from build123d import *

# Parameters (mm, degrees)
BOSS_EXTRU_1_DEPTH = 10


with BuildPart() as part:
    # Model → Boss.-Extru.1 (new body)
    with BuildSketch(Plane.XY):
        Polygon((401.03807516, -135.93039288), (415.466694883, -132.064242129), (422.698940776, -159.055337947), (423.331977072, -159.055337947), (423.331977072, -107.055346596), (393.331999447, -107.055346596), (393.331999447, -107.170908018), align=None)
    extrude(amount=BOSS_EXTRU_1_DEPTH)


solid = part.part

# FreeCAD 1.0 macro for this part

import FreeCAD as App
import Part
import Sketcher

V = App.Vector
Q = App.Units.Quantity

doc = App.newDocument("Part")
body = doc.addObject("PartDesign::Body", "Body")

sketch1 = body.newObject("Sketcher::SketchObject", "Sketch")
sketch1.AttachmentSupport = (doc.getObject("XY_Plane"), [""])
sketch1.MapMode = "FlatFace"
sketch1.addGeometry([
    Part.LineSegment(V(401.04, -135.93, 0), V(415.47, -132.06, 0)),
    Part.LineSegment(V(415.47, -132.06, 0), V(422.7, -159.06, 0)),
    Part.LineSegment(V(422.7, -159.06, 0), V(423.33, -159.06, 0)),
    Part.LineSegment(V(423.33, -159.06, 0), V(423.33, -107.06, 0)),
    Part.LineSegment(V(423.33, -107.06, 0), V(393.33, -107.06, 0)),
    Part.LineSegment(V(393.33, -107.06, 0), V(393.33, -107.17, 0)),
    Part.LineSegment(V(393.33, -107.17, 0), V(401.04, -135.93, 0)),
], False)
sketch1.addConstraint([
    Sketcher.Constraint("Coincident", 0, 2, 1, 1),
    Sketcher.Constraint("Coincident", 1, 2, 2, 1),
    Sketcher.Constraint("Coincident", 2, 2, 3, 1),
    Sketcher.Constraint("Coincident", 3, 2, 4, 1),
    Sketcher.Constraint("Coincident", 4, 2, 5, 1),
    Sketcher.Constraint("Coincident", 5, 2, 6, 1),
    Sketcher.Constraint("Coincident", 6, 2, 0, 1),
    Sketcher.Constraint("Horizontal", 2),
    Sketcher.Constraint("Vertical", 3),
    Sketcher.Constraint("Horizontal", 4),
    Sketcher.Constraint("Vertical", 5),
    Sketcher.Constraint("Perpendicular", 0, 1),
    Sketcher.Constraint("Parallel", 1, 6),
    Sketcher.Constraint("Angle", 1, Q("-74.999993 deg")),
    Sketcher.Constraint("DistanceX", -1, 1, 4, 2, Q("393.331999 mm")),
    Sketcher.Constraint("DistanceY", 3, 1, 3, 2, Q("51.999991 mm")),
    Sketcher.Constraint("DistanceY", 5, 2, 5, 1, Q("0.115561 mm")),
    Sketcher.Constraint("DistanceX", 6, 2, 2, 2, Q("22.293902 mm")),
    Sketcher.Constraint("Distance", 0, Q("14.93761 mm")),
    Sketcher.Constraint("Distance", 1, Q("27.94324 mm")),
    Sketcher.Constraint("DistanceY", 5, 2, -1, 1, Q("107.170908 mm")),
])
pad1 = body.newObject("PartDesign::Pad", "Pad")
pad1.Profile = sketch1
pad1.Length = 10

doc.recompute()
